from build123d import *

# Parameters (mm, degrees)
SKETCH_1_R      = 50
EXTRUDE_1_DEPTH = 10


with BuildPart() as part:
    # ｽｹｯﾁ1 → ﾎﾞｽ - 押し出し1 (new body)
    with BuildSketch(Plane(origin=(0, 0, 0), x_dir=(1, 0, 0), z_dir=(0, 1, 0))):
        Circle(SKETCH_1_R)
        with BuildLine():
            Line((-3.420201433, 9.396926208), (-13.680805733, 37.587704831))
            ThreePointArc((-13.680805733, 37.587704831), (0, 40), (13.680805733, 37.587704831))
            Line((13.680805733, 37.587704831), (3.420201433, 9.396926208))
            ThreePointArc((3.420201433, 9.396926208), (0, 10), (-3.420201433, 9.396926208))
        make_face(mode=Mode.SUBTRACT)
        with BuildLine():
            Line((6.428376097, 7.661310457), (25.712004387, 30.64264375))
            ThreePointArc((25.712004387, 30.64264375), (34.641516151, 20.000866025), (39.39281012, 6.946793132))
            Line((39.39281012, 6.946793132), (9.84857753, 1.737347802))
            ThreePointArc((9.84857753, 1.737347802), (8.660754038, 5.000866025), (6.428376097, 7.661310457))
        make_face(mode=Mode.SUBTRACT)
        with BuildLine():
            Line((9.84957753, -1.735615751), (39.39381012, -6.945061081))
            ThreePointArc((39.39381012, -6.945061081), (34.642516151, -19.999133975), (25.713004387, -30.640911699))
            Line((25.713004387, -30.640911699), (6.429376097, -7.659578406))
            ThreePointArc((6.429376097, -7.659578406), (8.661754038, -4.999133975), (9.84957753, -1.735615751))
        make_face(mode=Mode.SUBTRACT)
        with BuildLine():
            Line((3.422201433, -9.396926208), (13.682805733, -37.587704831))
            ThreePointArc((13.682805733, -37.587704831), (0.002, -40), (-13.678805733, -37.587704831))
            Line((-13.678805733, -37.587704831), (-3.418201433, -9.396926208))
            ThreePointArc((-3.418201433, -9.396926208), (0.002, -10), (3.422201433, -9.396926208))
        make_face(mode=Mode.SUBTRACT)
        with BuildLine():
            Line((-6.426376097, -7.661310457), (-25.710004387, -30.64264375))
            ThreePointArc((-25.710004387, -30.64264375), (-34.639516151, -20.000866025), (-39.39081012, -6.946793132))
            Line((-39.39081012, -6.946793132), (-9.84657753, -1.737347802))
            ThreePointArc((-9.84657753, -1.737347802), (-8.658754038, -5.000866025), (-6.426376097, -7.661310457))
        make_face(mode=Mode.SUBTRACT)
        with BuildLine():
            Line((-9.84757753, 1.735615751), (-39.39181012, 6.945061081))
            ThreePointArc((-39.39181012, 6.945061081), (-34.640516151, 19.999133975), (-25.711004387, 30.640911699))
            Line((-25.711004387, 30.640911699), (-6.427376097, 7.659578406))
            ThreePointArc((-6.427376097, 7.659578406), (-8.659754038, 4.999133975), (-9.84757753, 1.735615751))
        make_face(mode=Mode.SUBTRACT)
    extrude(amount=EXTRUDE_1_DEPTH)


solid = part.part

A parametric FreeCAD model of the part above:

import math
import FreeCAD as App
import Part
import Sketcher

V = App.Vector
Q = App.Units.Quantity

doc = App.newDocument("Part")
params = doc.addObject("Spreadsheet::Sheet", "Params")
for row, (alias, value) in enumerate([
    ("sketch1_diameter", "100 mm"),
    ("sketch1_radius", "10 mm"),
    ("sketch1_radius2", "40 mm"),
    ("pad1_length", "10 mm"),
], start=1):
    params.set(f"A{row}", alias)
    params.set(f"B{row}", "=" + value)
    params.setAlias(f"B{row}", alias)

body = doc.addObject("PartDesign::Body", "Body")

sketch1 = doc.addObject("Sketcher::SketchObject", "Sketch")
body.addObject(sketch1)
sketch1.AttachmentSupport = (doc.XZ_Plane, [""])
sketch1.MapMode = "FlatFace"
sketch1.addGeometry([
    Part.Circle(V(0, 0, 0), V(0, 0, 1), 50),
    Part.ArcOfCircle(Part.Circle(V(0.0015, 0.000866, 0), V(0, 0, 1), 10), math.radians(130), math.radians(170)),
    Part.LineSegment(V(-6.426376, 7.66131, 0), V(-25.710004, 30.642644, 0)),
    Part.ArcOfCircle(Part.Circle(V(0.0015, 0.000866, 0), V(0, 0, 1), 40), math.radians(130), math.radians(170)),
    Part.LineSegment(V(-39.39081, 6.946793, 0), V(-9.846578, 1.737348, 0)),
    Part.ArcOfCircle(Part.Circle(V(0.002, 0, 0), V(0, 0, 1), 10), math.radians(70), math.radians(110)),
    Part.LineSegment(V(3.422201, 9.396926, 0), V(13.682806, 37.587705, 0)),
    Part.ArcOfCircle(Part.Circle(V(0.002, 0, 0), V(0, 0, 1), 40), math.radians(70), math.radians(110)),
    Part.LineSegment(V(-13.678806, 37.587705, 0), V(-3.418201, 9.396926, 0)),
    Part.ArcOfCircle(Part.Circle(V(0.0015, -0.000866, 0), V(0, 0, 1), 10), math.radians(10), math.radians(50)),
    Part.LineSegment(V(9.849578, 1.735616, 0), V(39.39381, 6.945061, 0)),
    Part.ArcOfCircle(Part.Circle(V(0.0015, -0.000866, 0), V(0, 0, 1), 40), math.radians(10), math.radians(50)),
    Part.LineSegment(V(25.713004, 30.640912, 0), V(6.429376, 7.659578, 0)),
    Part.ArcOfCircle(Part.Circle(V(0.0005, 0.000866, 0), V(0, 0, 1), 10), math.radians(-170), math.radians(-130)),
    Part.LineSegment(V(-9.847578, -1.735616, 0), V(-39.39181, -6.945061, 0)),
    Part.ArcOfCircle(Part.Circle(V(0.0005, 0.000866, 0), V(0, 0, 1), 40), math.radians(-170), math.radians(-130)),
    Part.LineSegment(V(-25.711004, -30.640912, 0), V(-6.427376, -7.659578, 0)),
    Part.ArcOfCircle(Part.Circle(V(0, 0, 0), V(0, 0, 1), 10), math.radians(-110), math.radians(-70)),
    Part.LineSegment(V(-3.420201, -9.396926, 0), V(-13.680806, -37.587705, 0)),
    Part.ArcOfCircle(Part.Circle(V(0, 0, 0), V(0, 0, 1), 40), math.radians(-110), math.radians(-70)),
    Part.LineSegment(V(13.680806, -37.587705, 0), V(3.420201, -9.396926, 0)),
    Part.ArcOfCircle(Part.Circle(V(0.0005, -0.000866, 0), V(0, 0, 1), 10), math.radians(-50), math.radians(-10)),
    Part.LineSegment(V(6.428376, -7.66131, 0), V(25.712004, -30.642644, 0)),
    Part.ArcOfCircle(Part.Circle(V(0.0005, -0.000866, 0), V(0, 0, 1), 40), math.radians(-50), math.radians(-10)),
    Part.LineSegment(V(39.39281, -6.946793, 0), V(9.848578, -1.737348, 0)),
], False)
sketch1.addConstraint([
    Sketcher.Constraint("Coincident", 1, 1, 2, 1),
    Sketcher.Constraint("Coincident", 2, 2, 3, 1),
    Sketcher.Constraint("Coincident", 3, 2, 4, 1),
    Sketcher.Constraint("Coincident", 4, 2, 1, 2),
    Sketcher.Constraint("Coincident", 5, 1, 6, 1),
    Sketcher.Constraint("Coincident", 6, 2, 7, 1),
    Sketcher.Constraint("Coincident", 7, 2, 8, 1),
    Sketcher.Constraint("Coincident", 8, 2, 5, 2),
    Sketcher.Constraint("Coincident", 9, 1, 10, 1),
    Sketcher.Constraint("Coincident", 10, 2, 11, 1),
    Sketcher.Constraint("Coincident", 11, 2, 12, 1),
    Sketcher.Constraint("Coincident", 12, 2, 9, 2),
    Sketcher.Constraint("Coincident", 13, 1, 14, 1),
    Sketcher.Constraint("Coincident", 14, 2, 15, 1),
    Sketcher.Constraint("Coincident", 15, 2, 16, 1),
    Sketcher.Constraint("Coincident", 16, 2, 13, 2),
    Sketcher.Constraint("Coincident", 17, 1, 18, 1),
    Sketcher.Constraint("Coincident", 18, 2, 19, 1),
    Sketcher.Constraint("Coincident", 19, 2, 20, 1),
    Sketcher.Constraint("Coincident", 20, 2, 17, 2),
    Sketcher.Constraint("Coincident", 21, 1, 22, 1),
    Sketcher.Constraint("Coincident", 22, 2, 23, 1),
    Sketcher.Constraint("Coincident", 23, 2, 24, 1),
    Sketcher.Constraint("Coincident", 24, 2, 21, 2),
    Sketcher.Constraint("Coincident", 0, 3, -1, 1),
    Sketcher.Constraint("Coincident", 17, 3, -1, 1),
    Sketcher.Constraint("Coincident", 19, 3, -1, 1),
    Sketcher.Constraint("Coincident", 3, 3, 1, 3),
    Sketcher.Constraint("Coincident", 7, 3, 5, 3),
    Sketcher.Constraint("Coincident", 11, 3, 9, 3),
    Sketcher.Constraint("Coincident", 15, 3, 13, 3),
    Sketcher.Constraint("Coincident", 23, 3, 21, 3),
    Sketcher.Constraint("Equal", 1, 5),
    Sketcher.Constraint("Equal", 3, 7),
    Sketcher.Constraint("Equal", 5, 9),
    Sketcher.Constraint("Equal", 7, 11),
    Sketcher.Constraint("Equal", 9, 13),
    Sketcher.Constraint("Equal", 11, 15),
    Sketcher.Constraint("Equal", 13, 17),
    Sketcher.Constraint("Equal", 15, 19),
    Sketcher.Constraint("Equal", 17, 21),
    Sketcher.Constraint("Equal", 19, 23),
    Sketcher.Constraint("Symmetric", 1, 3, 9, 3, -1),
    Sketcher.Constraint("Symmetric", 13, 3, 21, 3, -1),
    Sketcher.Constraint("PointOnObject", 5, 3, -1),
    Sketcher.Constraint("Parallel", 10, 14),
    Sketcher.Constraint("Parallel", 12, 16),
    Sketcher.Constraint("Parallel", 6, 18),
    Sketcher.Constraint("Parallel", 8, 20),
    Sketcher.Constraint("Parallel", 2, 22),
    Sketcher.Constraint("Parallel", 4, 24),
    Sketcher.Constraint("Horizontal", 3, 3, 13, 3),
    Sketcher.Constraint("Horizontal", 6, 2, 7, 2),
    Sketcher.Constraint("Horizontal", 5, 1, 8, 2),
    Sketcher.Constraint("Horizontal", 18, 2, 19, 2),
    Sketcher.Constraint("Diameter", 0, Q("100 mm")),
    Sketcher.Constraint("Radius", 1, Q("10 mm")),
    Sketcher.Constraint("Radius", 3, Q("40 mm")),
    Sketcher.Constraint("Angle", 2, Q("130 deg")),
    Sketcher.Constraint("Angle", 4, Q("-10 deg")),
    Sketcher.Constraint("Angle", 6, Q("70 deg")),
    Sketcher.Constraint("Angle", 10, Q("10 deg")),
    Sketcher.Constraint("Angle", 12, Q("-130 deg")),
    Sketcher.Constraint("DistanceX", -1, 1, 5, 3, Q("0.002 mm")),
    Sketcher.Constraint("DistanceX", 13, 3, 3, 3, Q("0.001 mm")),
    Sketcher.Constraint("DistanceX", 13, 1, 4, 2, Q("0.001 mm")),
    Sketcher.Constraint("DistanceX", 23, 2, 10, 2, Q("0.001 mm")),
    Sketcher.Constraint("DistanceX", -1, 1, 1, 3, Q("0.0015 mm")),
    Sketcher.Constraint("DistanceX", -1, 1, 5, 1, Q("3.422201 mm")),
    Sketcher.Constraint("DistanceX", 17, 1, -1, 1, Q("3.420201 mm")),
    Sketcher.Constraint("DistanceX", 4, 2, 1, 1, Q("3.420201 mm")),
    Sketcher.Constraint("DistanceX", 2, 2, 7, 2, Q("12.031199 mm")),
    Sketcher.Constraint("DistanceX", 6, 2, 11, 2, Q("12.030199 mm")),
    Sketcher.Constraint("DistanceX", 12, 2, 9, 1, Q("3.420201 mm")),
    Sketcher.Constraint("DistanceX", 13, 1, 16, 2, Q("3.420201 mm")),
    Sketcher.Constraint("DistanceX", 19, 2, 22, 2, Q("12.031199 mm")),
    Sketcher.Constraint("DistanceY", -1, 1, 1, 1, Q("7.66131 mm")),
])
sketch1.setExpression("Constraints[55]", "Params.sketch1_diameter")
sketch1.setExpression("Constraints[56]", "Params.sketch1_radius")
sketch1.setExpression("Constraints[57]", "Params.sketch1_radius2")
pad1 = doc.addObject("PartDesign::Pad", "Pad")
body.addObject(pad1)
pad1.Profile = sketch1
pad1.setExpression("Length", "Params.pad1_length")
pad1.Reversed = True

doc.recompute()
